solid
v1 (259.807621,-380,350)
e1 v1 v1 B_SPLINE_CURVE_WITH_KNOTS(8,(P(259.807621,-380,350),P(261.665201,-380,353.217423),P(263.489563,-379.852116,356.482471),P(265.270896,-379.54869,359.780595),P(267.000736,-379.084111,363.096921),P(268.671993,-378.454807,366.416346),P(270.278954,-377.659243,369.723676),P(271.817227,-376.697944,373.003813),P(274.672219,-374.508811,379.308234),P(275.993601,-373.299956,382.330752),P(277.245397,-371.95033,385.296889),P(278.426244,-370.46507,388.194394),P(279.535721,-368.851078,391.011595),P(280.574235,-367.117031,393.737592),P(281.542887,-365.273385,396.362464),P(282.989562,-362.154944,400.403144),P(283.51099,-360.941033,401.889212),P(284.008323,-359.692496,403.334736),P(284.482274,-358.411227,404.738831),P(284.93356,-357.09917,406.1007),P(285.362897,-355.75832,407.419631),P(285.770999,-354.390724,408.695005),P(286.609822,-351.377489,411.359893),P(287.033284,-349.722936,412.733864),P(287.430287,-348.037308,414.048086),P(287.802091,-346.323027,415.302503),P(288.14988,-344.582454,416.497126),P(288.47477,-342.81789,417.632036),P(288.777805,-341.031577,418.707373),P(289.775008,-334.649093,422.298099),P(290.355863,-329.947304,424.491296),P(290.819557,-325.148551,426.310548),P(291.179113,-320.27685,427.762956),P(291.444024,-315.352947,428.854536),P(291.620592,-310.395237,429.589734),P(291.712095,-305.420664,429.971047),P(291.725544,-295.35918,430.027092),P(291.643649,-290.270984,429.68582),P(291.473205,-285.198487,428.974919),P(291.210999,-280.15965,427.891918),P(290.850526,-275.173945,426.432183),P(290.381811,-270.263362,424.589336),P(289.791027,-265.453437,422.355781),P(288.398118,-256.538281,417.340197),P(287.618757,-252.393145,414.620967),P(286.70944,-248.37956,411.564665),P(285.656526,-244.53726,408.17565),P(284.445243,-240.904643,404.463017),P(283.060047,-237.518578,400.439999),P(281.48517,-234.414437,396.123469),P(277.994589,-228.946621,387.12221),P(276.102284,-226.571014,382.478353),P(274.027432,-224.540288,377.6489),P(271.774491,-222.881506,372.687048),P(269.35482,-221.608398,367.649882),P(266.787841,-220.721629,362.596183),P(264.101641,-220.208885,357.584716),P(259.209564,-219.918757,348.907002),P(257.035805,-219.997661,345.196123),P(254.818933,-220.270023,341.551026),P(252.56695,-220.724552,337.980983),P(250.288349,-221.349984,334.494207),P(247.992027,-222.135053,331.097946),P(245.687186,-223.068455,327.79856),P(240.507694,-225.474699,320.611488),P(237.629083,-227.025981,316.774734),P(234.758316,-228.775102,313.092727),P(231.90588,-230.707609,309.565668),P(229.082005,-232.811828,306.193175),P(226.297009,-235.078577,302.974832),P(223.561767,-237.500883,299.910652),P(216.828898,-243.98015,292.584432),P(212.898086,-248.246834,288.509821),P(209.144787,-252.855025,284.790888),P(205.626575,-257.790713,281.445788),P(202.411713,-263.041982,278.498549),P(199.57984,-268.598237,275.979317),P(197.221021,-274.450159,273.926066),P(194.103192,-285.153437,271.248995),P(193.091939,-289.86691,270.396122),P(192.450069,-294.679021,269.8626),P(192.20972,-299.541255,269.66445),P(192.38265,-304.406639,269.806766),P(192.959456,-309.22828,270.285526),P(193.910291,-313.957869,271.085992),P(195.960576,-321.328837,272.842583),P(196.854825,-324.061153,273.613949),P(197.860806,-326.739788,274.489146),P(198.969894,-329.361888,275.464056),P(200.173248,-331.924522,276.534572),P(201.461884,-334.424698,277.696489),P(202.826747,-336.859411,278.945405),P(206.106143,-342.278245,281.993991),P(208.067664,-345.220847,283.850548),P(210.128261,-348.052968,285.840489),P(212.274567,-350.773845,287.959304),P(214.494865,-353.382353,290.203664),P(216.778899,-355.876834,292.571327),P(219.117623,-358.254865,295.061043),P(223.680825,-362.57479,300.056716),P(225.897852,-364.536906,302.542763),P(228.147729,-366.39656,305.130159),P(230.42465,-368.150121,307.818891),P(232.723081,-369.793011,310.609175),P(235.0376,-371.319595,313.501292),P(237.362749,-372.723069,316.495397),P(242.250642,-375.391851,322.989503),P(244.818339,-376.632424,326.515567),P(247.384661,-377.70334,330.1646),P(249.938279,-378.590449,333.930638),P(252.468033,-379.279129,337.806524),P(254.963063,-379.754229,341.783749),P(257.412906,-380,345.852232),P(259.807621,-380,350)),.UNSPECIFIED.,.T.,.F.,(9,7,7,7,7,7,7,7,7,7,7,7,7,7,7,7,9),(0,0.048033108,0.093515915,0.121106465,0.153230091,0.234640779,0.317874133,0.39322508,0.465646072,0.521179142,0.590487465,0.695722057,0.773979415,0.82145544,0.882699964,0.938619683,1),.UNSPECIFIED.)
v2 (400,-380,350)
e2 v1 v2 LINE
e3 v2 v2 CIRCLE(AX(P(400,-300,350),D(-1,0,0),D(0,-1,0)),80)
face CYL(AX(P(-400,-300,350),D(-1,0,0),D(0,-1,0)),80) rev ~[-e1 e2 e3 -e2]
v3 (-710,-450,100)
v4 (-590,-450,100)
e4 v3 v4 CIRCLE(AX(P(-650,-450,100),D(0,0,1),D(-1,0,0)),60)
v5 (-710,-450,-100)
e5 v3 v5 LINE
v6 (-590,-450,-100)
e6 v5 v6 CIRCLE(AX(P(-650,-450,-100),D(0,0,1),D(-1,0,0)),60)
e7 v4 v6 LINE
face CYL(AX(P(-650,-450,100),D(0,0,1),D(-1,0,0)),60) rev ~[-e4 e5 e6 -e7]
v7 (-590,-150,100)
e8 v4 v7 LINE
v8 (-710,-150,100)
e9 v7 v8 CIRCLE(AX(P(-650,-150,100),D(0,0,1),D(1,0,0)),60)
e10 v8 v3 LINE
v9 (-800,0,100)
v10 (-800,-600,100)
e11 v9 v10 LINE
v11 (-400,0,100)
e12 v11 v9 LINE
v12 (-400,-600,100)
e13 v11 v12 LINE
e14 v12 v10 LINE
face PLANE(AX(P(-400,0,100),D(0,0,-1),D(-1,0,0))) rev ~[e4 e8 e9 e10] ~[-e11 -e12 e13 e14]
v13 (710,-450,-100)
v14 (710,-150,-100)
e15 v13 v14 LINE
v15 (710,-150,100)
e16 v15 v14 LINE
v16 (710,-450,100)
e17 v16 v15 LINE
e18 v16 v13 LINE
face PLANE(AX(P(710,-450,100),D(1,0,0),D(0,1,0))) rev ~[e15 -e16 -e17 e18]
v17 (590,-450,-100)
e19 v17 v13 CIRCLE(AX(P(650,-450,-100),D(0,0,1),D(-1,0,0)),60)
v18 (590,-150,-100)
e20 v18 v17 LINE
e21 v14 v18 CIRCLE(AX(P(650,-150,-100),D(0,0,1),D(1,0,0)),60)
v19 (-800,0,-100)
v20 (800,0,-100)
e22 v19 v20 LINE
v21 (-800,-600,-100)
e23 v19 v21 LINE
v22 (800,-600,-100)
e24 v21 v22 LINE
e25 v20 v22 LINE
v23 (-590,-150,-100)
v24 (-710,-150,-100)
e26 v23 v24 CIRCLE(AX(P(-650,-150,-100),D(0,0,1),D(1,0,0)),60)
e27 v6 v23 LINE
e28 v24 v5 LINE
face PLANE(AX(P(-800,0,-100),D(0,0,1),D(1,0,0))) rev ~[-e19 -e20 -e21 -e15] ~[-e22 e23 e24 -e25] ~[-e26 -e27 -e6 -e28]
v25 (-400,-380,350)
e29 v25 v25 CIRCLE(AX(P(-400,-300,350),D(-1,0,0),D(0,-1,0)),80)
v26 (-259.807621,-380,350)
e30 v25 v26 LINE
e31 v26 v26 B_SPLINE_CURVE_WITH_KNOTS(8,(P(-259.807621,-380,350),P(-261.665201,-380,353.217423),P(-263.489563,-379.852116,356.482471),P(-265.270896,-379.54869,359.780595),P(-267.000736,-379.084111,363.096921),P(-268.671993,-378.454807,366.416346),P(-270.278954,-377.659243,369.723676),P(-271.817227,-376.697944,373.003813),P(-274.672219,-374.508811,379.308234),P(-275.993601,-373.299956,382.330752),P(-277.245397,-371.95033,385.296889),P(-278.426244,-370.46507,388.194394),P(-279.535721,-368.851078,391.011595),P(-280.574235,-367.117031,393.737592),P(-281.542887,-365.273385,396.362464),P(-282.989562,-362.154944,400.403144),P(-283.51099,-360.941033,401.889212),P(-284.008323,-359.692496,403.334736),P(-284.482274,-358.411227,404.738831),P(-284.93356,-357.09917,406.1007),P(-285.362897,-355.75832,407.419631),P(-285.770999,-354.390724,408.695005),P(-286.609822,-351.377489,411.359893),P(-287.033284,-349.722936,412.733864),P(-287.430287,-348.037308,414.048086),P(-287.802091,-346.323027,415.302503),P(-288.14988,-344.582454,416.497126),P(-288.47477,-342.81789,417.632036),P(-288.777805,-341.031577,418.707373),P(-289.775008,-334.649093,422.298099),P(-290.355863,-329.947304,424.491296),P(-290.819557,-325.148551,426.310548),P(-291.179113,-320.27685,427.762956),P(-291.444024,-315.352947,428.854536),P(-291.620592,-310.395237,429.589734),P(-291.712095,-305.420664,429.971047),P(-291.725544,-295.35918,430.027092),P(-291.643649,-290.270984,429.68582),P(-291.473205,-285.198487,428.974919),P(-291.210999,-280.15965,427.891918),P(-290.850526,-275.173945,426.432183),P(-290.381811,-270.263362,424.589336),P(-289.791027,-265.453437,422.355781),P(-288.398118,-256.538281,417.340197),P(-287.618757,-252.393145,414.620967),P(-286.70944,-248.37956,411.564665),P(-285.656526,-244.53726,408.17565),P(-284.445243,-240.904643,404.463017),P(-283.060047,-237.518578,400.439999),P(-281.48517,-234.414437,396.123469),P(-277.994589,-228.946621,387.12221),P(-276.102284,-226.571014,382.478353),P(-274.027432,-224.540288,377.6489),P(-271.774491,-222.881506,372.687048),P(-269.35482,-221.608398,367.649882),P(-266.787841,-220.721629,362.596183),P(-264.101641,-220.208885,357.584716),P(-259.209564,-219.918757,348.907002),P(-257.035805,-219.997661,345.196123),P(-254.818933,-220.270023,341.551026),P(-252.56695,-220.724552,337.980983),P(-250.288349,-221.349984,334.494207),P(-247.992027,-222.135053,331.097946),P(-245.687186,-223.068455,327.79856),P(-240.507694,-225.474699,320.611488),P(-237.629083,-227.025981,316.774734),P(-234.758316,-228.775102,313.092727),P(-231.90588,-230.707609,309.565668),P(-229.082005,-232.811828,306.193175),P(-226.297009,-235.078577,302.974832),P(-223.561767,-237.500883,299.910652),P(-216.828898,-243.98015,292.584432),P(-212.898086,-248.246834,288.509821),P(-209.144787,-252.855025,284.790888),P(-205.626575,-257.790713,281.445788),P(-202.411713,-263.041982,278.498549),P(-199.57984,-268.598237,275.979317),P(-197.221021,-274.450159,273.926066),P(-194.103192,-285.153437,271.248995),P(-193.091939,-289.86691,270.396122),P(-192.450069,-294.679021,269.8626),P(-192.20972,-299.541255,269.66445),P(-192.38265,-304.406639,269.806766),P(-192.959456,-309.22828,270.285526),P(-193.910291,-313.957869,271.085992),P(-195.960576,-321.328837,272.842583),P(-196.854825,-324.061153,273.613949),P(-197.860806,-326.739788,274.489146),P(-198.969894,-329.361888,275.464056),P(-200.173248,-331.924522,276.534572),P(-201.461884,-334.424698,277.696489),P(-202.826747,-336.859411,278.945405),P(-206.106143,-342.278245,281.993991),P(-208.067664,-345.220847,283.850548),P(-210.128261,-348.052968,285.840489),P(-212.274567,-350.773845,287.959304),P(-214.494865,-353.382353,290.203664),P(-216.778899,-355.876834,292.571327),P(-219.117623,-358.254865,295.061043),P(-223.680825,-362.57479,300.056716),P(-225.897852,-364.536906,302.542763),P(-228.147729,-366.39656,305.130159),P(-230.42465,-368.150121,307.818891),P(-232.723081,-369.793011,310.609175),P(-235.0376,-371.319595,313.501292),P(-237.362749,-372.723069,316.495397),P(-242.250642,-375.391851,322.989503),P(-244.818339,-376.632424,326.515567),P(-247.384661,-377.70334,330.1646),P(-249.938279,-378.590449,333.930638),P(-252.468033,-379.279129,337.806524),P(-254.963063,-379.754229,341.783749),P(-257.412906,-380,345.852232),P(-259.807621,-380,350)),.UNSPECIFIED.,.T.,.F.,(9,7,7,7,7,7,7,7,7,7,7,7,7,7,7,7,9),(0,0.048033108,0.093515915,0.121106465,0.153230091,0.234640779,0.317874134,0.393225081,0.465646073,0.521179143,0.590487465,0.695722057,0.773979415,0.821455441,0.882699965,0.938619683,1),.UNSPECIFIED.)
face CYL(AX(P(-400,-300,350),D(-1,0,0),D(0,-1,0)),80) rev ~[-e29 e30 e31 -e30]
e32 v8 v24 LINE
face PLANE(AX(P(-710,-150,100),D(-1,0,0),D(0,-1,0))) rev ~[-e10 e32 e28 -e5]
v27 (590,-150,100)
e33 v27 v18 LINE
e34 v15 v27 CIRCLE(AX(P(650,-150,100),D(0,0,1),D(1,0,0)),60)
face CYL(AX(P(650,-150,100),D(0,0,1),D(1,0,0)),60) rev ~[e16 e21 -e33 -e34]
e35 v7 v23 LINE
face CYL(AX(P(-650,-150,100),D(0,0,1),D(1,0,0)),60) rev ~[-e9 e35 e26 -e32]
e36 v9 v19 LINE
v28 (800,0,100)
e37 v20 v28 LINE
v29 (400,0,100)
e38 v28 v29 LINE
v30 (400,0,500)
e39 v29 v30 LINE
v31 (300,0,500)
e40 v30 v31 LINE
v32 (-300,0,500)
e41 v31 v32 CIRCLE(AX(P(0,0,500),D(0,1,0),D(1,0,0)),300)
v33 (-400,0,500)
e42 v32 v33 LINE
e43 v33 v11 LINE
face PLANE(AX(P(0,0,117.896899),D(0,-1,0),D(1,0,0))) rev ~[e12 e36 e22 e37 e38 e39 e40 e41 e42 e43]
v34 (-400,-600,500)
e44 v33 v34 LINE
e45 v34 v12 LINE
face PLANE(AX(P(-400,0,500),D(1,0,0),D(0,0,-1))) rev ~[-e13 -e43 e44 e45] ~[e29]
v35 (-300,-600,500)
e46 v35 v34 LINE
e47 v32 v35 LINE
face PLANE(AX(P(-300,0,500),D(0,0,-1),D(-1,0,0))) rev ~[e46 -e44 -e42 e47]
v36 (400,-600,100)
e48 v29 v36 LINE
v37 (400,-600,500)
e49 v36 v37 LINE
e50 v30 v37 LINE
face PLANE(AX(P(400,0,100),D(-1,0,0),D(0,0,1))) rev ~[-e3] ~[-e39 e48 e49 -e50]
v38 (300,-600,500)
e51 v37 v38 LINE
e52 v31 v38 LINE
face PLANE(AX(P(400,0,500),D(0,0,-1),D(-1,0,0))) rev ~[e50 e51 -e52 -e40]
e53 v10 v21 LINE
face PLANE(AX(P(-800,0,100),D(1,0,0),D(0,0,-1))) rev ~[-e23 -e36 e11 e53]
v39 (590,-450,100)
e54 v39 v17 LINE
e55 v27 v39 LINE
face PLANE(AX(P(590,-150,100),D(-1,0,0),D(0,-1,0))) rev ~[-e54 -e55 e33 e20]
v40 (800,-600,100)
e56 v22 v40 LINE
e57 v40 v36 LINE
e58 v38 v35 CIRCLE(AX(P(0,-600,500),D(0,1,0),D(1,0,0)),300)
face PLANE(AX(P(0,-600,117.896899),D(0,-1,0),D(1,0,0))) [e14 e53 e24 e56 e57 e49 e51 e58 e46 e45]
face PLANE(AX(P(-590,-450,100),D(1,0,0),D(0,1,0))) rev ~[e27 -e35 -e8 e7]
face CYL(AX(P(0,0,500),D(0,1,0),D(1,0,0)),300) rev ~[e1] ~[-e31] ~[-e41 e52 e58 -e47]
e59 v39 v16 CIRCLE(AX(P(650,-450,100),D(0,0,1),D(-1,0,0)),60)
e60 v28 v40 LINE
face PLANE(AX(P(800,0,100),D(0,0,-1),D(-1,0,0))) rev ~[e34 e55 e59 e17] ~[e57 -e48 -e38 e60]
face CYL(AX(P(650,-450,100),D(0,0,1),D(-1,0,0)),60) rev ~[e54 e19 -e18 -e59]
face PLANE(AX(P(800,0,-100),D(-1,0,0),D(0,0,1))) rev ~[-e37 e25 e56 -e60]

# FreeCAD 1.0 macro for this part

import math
import FreeCAD as App
import Part
import Sketcher
from FreeCAD import Vector
Q = App.Units.Quantity

doc = App.newDocument("Part")
body = doc.addObject("PartDesign::Body", "Body")

sketch1 = doc.addObject("Sketcher::SketchObject", "Sketch")
body.addObject(sketch1)
sketch1.AttachmentSupport = (doc.XZ_Plane, [""])
sketch1.MapMode = "FlatFace"
sketch1.addGeometry(Part.LineSegment(Vector(-400, 100, 0), Vector(-800, 100, 0)), False)
sketch1.addGeometry(Part.LineSegment(Vector(-800, 100, 0), Vector(-800, -100, 0)), False)
sketch1.addGeometry(Part.LineSegment(Vector(-800, -100, 0), Vector(800, -100, 0)), False)
sketch1.addGeometry(Part.LineSegment(Vector(800, -100, 0), Vector(800, 100, 0)), False)
sketch1.addGeometry(Part.LineSegment(Vector(800, 100, 0), Vector(400, 100, 0)), False)
sketch1.addGeometry(Part.LineSegment(Vector(400, 100, 0), Vector(400, 500, 0)), False)
sketch1.addGeometry(Part.LineSegment(Vector(400, 500, 0), Vector(300, 500, 0)), False)
sketch1.addGeometry(Part.ArcOfCircle(Part.Circle(Vector(0, 500, 0), Vector(0, 0, 1), 300), math.radians(180), math.radians(360)), False)
sketch1.addGeometry(Part.LineSegment(Vector(-300, 500, 0), Vector(-400, 500, 0)), False)
sketch1.addGeometry(Part.LineSegment(Vector(-400, 500, 0), Vector(-400, 100, 0)), False)
sketch1.addConstraint(Sketcher.Constraint("Coincident", 0, 2, 1, 1))
sketch1.addConstraint(Sketcher.Constraint("Coincident", 1, 2, 2, 1))
sketch1.addConstraint(Sketcher.Constraint("Coincident", 2, 2, 3, 1))
sketch1.addConstraint(Sketcher.Constraint("Coincident", 3, 2, 4, 1))
sketch1.addConstraint(Sketcher.Constraint("Coincident", 4, 2, 5, 1))
sketch1.addConstraint(Sketcher.Constraint("Coincident", 5, 2, 6, 1))
sketch1.addConstraint(Sketcher.Constraint("Coincident", 6, 2, 7, 2))
sketch1.addConstraint(Sketcher.Constraint("Coincident", 7, 1, 8, 1))
sketch1.addConstraint(Sketcher.Constraint("Coincident", 8, 2, 9, 1))
sketch1.addConstraint(Sketcher.Constraint("Coincident", 9, 2, 0, 1))
sketch1.addConstraint(Sketcher.Constraint("Horizontal", 0))
sketch1.addConstraint(Sketcher.Constraint("Vertical", 1))
sketch1.addConstraint(Sketcher.Constraint("Horizontal", 2))
sketch1.addConstraint(Sketcher.Constraint("Vertical", 3))
sketch1.addConstraint(Sketcher.Constraint("Horizontal", 4))
sketch1.addConstraint(Sketcher.Constraint("Vertical", 5))
sketch1.addConstraint(Sketcher.Constraint("Horizontal", 6))
sketch1.addConstraint(Sketcher.Constraint("Horizontal", 8))
sketch1.addConstraint(Sketcher.Constraint("Vertical", 9))
sketch1.addConstraint(Sketcher.Constraint("Symmetric", 0, 2, 2, 2, -1, 1))
sketch1.addConstraint(Sketcher.Constraint("Symmetric", 6, 2, 7, 1, -2))
sketch1.addConstraint(Sketcher.Constraint("Symmetric", 4, 2, 9, 2, -2))
sketch1.addConstraint(Sketcher.Constraint("Horizontal", 7, 3, 5, 2))
sketch1.addConstraint(Sketcher.Constraint("Equal", 4, 5))
sketch1.addConstraint(Sketcher.Constraint("Radius", 7, Q("300 mm")))
sketch1.addConstraint(Sketcher.Constraint("DistanceX", 0, 2, 0, 1, Q("400 mm")))
sketch1.addConstraint(Sketcher.Constraint("DistanceX", 2, 1, 2, 2, Q("1600 mm")))
sketch1.addConstraint(Sketcher.Constraint("DistanceY", 1, 2, 1, 1, Q("200 mm")))
pad1 = doc.addObject("PartDesign::Pad", "Pad")
body.addObject(pad1)
pad1.Profile = sketch1
pad1.Length = 600

sketch2 = doc.addObject("Sketcher::SketchObject", "Sketch001")
body.addObject(sketch2)
sketch2.AttachmentSupport = (doc.YZ_Plane, [""])
sketch2.MapMode = "FlatFace"
sketch2.AttachmentOffset = App.Placement(Vector(0, 0, -400), App.Rotation())
sketch2.addGeometry(Part.Circle(Vector(-300, 350, 0), Vector(0, 0, 1), 80), False)
sketch2.addConstraint(Sketcher.Constraint("Diameter", 0, Q("160 mm")))
sketch2.addConstraint(Sketcher.Constraint("DistanceX", 0, 3, -1, 1, Q("300 mm")))
sketch2.addConstraint(Sketcher.Constraint("DistanceY", -1, 1, 0, 3, Q("350 mm")))
pocket1 = doc.addObject("PartDesign::Pocket", "Pocket")
body.addObject(pocket1)
pocket1.Profile = sketch2
pocket1.Type = "ThroughAll"
pocket1.Reversed = True

sketch3 = doc.addObject("Sketcher::SketchObject", "Sketch002")
body.addObject(sketch3)
sketch3.AttachmentSupport = (doc.XY_Plane, [""])
sketch3.MapMode = "FlatFace"
sketch3.AttachmentOffset = App.Placement(Vector(0, 0, 100), App.Rotation())
sketch3.addGeometry(Part.LineSegment(Vector(-710, -150, 0), Vector(-710, -450, 0)), False)
sketch3.addGeometry(Part.ArcOfCircle(Part.Circle(Vector(-650, -450, 0), Vector(0, 0, 1), 60), math.radians(180), math.radians(360)), False)
sketch3.addGeometry(Part.LineSegment(Vector(-590, -450, 0), Vector(-590, -150, 0)), False)
sketch3.addGeometry(Part.ArcOfCircle(Part.Circle(Vector(-650, -150, 0), Vector(0, 0, 1), 60), math.radians(0), math.radians(180)), False)
sketch3.addGeometry(Part.LineSegment(Vector(590, -150, 0), Vector(590, -450, 0)), False)
sketch3.addGeometry(Part.ArcOfCircle(Part.Circle(Vector(650, -450, 0), Vector(0, 0, 1), 60), math.radians(180), math.radians(360)), False)
sketch3.addGeometry(Part.LineSegment(Vector(710, -450, 0), Vector(710, -150, 0)), False)
sketch3.addGeometry(Part.ArcOfCircle(Part.Circle(Vector(650, -150, 0), Vector(0, 0, 1), 60), math.radians(0), math.radians(180)), False)
sketch3.addConstraint(Sketcher.Constraint("Tangent", 0, 2, 1, 1))
sketch3.addConstraint(Sketcher.Constraint("Tangent", 1, 2, 2, 1))
sketch3.addConstraint(Sketcher.Constraint("Tangent", 2, 2, 3, 1))
sketch3.addConstraint(Sketcher.Constraint("Tangent", 3, 2, 0, 1))
sketch3.addConstraint(Sketcher.Constraint("Tangent", 4, 2, 5, 1))
sketch3.addConstraint(Sketcher.Constraint("Tangent", 5, 2, 6, 1))
sketch3.addConstraint(Sketcher.Constraint("Tangent", 6, 2, 7, 1))
sketch3.addConstraint(Sketcher.Constraint("Tangent", 7, 2, 4, 1))
sketch3.addConstraint(Sketcher.Constraint("Vertical", 0))
sketch3.addConstraint(Sketcher.Constraint("Vertical", 2))
sketch3.addConstraint(Sketcher.Constraint("Vertical", 4))
sketch3.addConstraint(Sketcher.Constraint("Vertical", 6))
sketch3.addConstraint(Sketcher.Constraint("Equal", 3, 5))
sketch3.addConstraint(Sketcher.Constraint("Symmetric", 1, 3, 5, 3, -2))
sketch3.addConstraint(Sketcher.Constraint("Horizontal", 3, 3, 7, 3))
sketch3.addConstraint(Sketcher.Constraint("Radius", 1, Q("60 mm")))
sketch3.addConstraint(Sketcher.Constraint("DistanceY", 0, 2, 0, 1, Q("300 mm")))
sketch3.addConstraint(Sketcher.Constraint("DistanceX", 1, 3, -1, 1, Q("650 mm")))
sketch3.addConstraint(Sketcher.Constraint("DistanceY", 1, 3, -1, 1, Q("450 mm")))
pocket2 = doc.addObject("PartDesign::Pocket", "Pocket001")
body.addObject(pocket2)
pocket2.Profile = sketch3
pocket2.Type = "ThroughAll"

doc.recompute()
